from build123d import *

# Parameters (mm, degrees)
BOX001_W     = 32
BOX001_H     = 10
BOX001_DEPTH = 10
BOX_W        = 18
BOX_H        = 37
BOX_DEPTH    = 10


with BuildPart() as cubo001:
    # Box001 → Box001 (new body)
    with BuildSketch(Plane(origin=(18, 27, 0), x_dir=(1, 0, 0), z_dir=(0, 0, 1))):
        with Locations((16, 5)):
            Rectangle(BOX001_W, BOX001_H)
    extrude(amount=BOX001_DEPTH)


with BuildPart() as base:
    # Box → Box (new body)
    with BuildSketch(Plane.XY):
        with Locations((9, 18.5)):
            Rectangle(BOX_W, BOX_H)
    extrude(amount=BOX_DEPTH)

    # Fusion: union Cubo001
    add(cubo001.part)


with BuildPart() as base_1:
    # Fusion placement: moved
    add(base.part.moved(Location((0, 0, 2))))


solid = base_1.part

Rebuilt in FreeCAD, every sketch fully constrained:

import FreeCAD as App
import Part
import Sketcher
Q = App.Units.Quantity


def add_polygon(sketch, points):
    """Adds a closed chain of lines whose ends are joined by coincident constraints."""
    first, n = sketch.GeometryCount, len(points)
    for a, b in zip(points, points[1:] + points[:1]):
        sketch.addGeometry(Part.LineSegment(App.Vector(*a, 0), App.Vector(*b, 0)), False)
    for i in range(n):
        sketch.addConstraint(Sketcher.Constraint("Coincident", first + i, 2, first + (i + 1) % n, 1))

doc = App.newDocument("Part")
body = doc.addObject("PartDesign::Body", "Body")

sketch1 = body.newObject("Sketcher::SketchObject", "Sketch")
sketch1.AttachmentSupport = (doc.getObject("XY_Plane"), [""])
sketch1.MapMode = "FlatFace"
add_polygon(sketch1, [(18, 37), (18, 27), (50, 27), (50, 37)])
sketch1.addConstraint([
    Sketcher.Constraint("Vertical", 0),
    Sketcher.Constraint("Horizontal", 1),
    Sketcher.Constraint("Vertical", 2),
    Sketcher.Constraint("Horizontal", 3),
    Sketcher.Constraint("DistanceX", 1, 1, 1, 2, Q("32 mm")),
    Sketcher.Constraint("DistanceY", 0, 2, 0, 1, Q("10 mm")),
    Sketcher.Constraint("DistanceX", -1, 1, 0, 2, Q("18 mm")),
    Sketcher.Constraint("DistanceY", -1, 1, 0, 2, Q("27 mm")),
])
pad1 = body.newObject("PartDesign::Pad", "Pad")
pad1.Profile = sketch1
pad1.Length = 10
body2 = doc.addObject("PartDesign::Body", "Body001")

sketch2 = body2.newObject("Sketcher::SketchObject", "Sketch001")
sketch2.AttachmentSupport = (doc.getObject("XY_Plane001"), [""])
sketch2.MapMode = "FlatFace"
add_polygon(sketch2, [(0, 37), (0, 0), (18, 0), (18, 37)])
sketch2.addConstraint([
    Sketcher.Constraint("Vertical", 0),
    Sketcher.Constraint("Horizontal", 1),
    Sketcher.Constraint("Vertical", 2),
    Sketcher.Constraint("Horizontal", 3),
    Sketcher.Constraint("Coincident", 0, 2, -1, 1),
    Sketcher.Constraint("DistanceX", 1, 1, 1, 2, Q("18 mm")),
    Sketcher.Constraint("DistanceY", 0, 2, 0, 1, Q("37 mm")),
])
pad2 = body2.newObject("PartDesign::Pad", "Pad001")
pad2.Profile = sketch2
pad2.Length = 10
doc.recompute()

boolean = body2.newObject("PartDesign::Boolean", "Boolean")
boolean.Type = "Fuse"
boolean.addObjects([body])
body3 = doc.addObject("PartDesign::Body", "Body002")
doc.recompute()

body2.Placement = App.Placement(App.Vector(0, 0, 2), App.Rotation(App.Vector(0, 0, 1), 0))
boolean2 = body3.newObject("PartDesign::Boolean", "Boolean001")
boolean2.Type = "Fuse"
boolean2.addObjects([body2])

doc.recompute()
